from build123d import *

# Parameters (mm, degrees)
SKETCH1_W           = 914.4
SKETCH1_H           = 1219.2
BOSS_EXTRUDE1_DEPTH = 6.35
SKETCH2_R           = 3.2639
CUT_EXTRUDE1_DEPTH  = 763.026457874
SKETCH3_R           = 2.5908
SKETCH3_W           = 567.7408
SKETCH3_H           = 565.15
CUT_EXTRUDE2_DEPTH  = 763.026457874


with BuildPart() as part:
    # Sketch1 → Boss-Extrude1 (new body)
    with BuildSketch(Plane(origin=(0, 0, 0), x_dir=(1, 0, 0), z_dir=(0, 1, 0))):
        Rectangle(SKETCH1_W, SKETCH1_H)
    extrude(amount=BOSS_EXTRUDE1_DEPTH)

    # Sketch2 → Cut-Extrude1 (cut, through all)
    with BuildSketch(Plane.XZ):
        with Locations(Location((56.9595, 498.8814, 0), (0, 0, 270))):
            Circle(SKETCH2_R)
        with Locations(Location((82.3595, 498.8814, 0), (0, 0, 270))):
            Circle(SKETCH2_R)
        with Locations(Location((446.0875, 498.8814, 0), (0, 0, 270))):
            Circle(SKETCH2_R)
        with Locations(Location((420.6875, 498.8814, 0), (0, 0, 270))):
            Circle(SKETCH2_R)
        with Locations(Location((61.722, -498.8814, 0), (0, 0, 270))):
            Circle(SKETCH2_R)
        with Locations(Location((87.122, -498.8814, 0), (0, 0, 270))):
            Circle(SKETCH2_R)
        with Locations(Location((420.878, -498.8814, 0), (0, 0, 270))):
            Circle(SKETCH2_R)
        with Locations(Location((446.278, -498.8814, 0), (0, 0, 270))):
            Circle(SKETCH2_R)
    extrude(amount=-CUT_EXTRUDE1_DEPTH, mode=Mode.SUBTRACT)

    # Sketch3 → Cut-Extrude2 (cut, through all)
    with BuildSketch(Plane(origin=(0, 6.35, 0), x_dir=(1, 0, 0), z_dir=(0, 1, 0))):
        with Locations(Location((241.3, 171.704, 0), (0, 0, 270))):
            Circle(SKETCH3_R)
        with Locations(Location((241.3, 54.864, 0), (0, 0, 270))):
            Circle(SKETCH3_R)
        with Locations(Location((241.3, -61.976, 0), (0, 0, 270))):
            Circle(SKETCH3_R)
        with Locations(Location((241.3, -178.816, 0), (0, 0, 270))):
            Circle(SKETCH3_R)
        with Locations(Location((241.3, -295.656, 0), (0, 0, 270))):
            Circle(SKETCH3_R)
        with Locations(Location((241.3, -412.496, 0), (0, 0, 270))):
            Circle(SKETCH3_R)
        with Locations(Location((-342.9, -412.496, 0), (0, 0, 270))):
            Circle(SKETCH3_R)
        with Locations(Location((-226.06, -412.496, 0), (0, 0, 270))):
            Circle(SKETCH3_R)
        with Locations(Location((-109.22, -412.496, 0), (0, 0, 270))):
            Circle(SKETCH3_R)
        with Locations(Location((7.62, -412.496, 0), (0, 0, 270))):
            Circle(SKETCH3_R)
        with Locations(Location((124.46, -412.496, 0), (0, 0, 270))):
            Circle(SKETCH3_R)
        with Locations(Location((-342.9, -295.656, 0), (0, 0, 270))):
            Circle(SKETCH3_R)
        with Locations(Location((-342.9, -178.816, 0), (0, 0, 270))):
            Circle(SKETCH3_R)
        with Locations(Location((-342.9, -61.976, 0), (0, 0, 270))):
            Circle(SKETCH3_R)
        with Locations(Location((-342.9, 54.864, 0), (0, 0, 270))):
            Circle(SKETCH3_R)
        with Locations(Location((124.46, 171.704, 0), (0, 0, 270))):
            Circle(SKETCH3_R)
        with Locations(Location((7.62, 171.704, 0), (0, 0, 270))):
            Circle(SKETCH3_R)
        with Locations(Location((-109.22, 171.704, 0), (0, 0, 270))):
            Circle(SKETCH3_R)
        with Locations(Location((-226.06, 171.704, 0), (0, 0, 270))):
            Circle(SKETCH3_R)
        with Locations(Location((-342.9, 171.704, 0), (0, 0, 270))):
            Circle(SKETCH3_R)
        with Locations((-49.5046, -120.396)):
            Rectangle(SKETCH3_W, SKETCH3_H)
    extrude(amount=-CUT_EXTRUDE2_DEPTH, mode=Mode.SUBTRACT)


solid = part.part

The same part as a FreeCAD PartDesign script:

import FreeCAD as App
import Part
import Sketcher
Q = App.Units.Quantity

doc = App.newDocument("Part")
params = doc.addObject("Spreadsheet::Sheet", "Params")
for row, (alias, value) in enumerate([
    ("sketch1_width", "36 in"),
    ("sketch1_height", "48 in"),
    ("pad1_length", "0.25 in"),
    ("sketch2_diameter", "0.257 in"),
    ("sketch3_diameter", "0.204 in"),
    ("sketch3_height", "22.25 in"),
    ("sketch3_width", "22.352 in"),
], start=1):
    params.set(f"A{row}", alias)
    params.set(f"B{row}", "=" + value)
    params.setAlias(f"B{row}", alias)

body = doc.addObject("PartDesign::Body", "Body")

# Sketch on XZ plane
sketch1 = body.newObject("Sketcher::SketchObject", "Sketch")
sketch1.AttachmentSupport = (doc.getObject("XZ_Plane"), [""])
sketch1.MapMode = "FlatFace"
sketch1.addGeometry([
    Part.LineSegment(App.Vector(-457, -610, 0), App.Vector(-457, 610, 0)),
    Part.LineSegment(App.Vector(-457, 610, 0), App.Vector(457, 610, 0)),
    Part.LineSegment(App.Vector(457, 610, 0), App.Vector(457, -610, 0)),
    Part.LineSegment(App.Vector(457, -610, 0), App.Vector(-457, -610, 0)),
], False)
sketch1.addConstraint([
    Sketcher.Constraint("Coincident", 0, 2, 1, 1),
    Sketcher.Constraint("Coincident", 1, 2, 2, 1),
    Sketcher.Constraint("Coincident", 2, 2, 3, 1),
    Sketcher.Constraint("Coincident", 3, 2, 0, 1),
    Sketcher.Constraint("Vertical", 0),
    Sketcher.Constraint("Horizontal", 1),
    Sketcher.Constraint("Vertical", 2),
    Sketcher.Constraint("Horizontal", 3),
    Sketcher.Constraint("Symmetric", 0, 2, 2, 2, -1, 1),
    Sketcher.Constraint("DistanceX", 1, 1, 1, 2, Q("36 in")),
    Sketcher.Constraint("DistanceY", 0, 1, 0, 2, Q("48 in")),
])
sketch1.setExpression("Constraints[9]", "Params.sketch1_width")
sketch1.setExpression("Constraints[10]", "Params.sketch1_height")
pad1 = body.newObject("PartDesign::Pad", "Pad")
pad1.Profile = sketch1
pad1.setExpression("Length", "Params.pad1_length")
pad1.Reversed = True

# Sketch on XZ plane
sketch2 = body.newObject("Sketcher::SketchObject", "Sketch001")
sketch2.AttachmentSupport = (doc.getObject("XZ_Plane"), [""])
sketch2.MapMode = "FlatFace"
sketch2.addGeometry([
    Part.Circle(App.Vector(57, 498.9, 0), App.Vector(0, 0, 1), 3.3),  # 0
    Part.Circle(App.Vector(82.4, 498.9, 0), App.Vector(0, 0, 1), 3.3),  # 1
    Part.Circle(App.Vector(446.1, 498.9, 0), App.Vector(0, 0, 1), 3.3),  # 2
    Part.Circle(App.Vector(420.7, 498.9, 0), App.Vector(0, 0, 1), 3.3),  # 3
    Part.Circle(App.Vector(61.7, -498.9, 0), App.Vector(0, 0, 1), 3.3),  # 4
    Part.Circle(App.Vector(87.1, -498.9, 0), App.Vector(0, 0, 1), 3.3),  # 5
    Part.Circle(App.Vector(420.9, -498.9, 0), App.Vector(0, 0, 1), 3.3),  # 6
    Part.Circle(App.Vector(446.3, -498.9, 0), App.Vector(0, 0, 1), 3.3),  # 7
], False)
sketch2.addConstraint([
    Sketcher.Constraint("Equal", 0, 1),
    Sketcher.Constraint("Equal", 1, 2),
    Sketcher.Constraint("Equal", 2, 3),
    Sketcher.Constraint("Equal", 3, 4),
    Sketcher.Constraint("Equal", 4, 5),
    Sketcher.Constraint("Equal", 5, 6),
    Sketcher.Constraint("Equal", 6, 7),
    Sketcher.Constraint("Horizontal", 0, 3, 1, 3),
    Sketcher.Constraint("Horizontal", 1, 3, 2, 3),
    Sketcher.Constraint("Horizontal", 2, 3, 3, 3),
    Sketcher.Constraint("Horizontal", 4, 3, 5, 3),
    Sketcher.Constraint("Horizontal", 5, 3, 6, 3),
    Sketcher.Constraint("Horizontal", 6, 3, 7, 3),
    Sketcher.Constraint("Diameter", 0, Q("0.257 in")),
    Sketcher.Constraint("DistanceX", 0, 3, 1, 3, Q("1 in")),
    Sketcher.Constraint("DistanceX", 3, 3, 2, 3, Q("1 in")),
    Sketcher.Constraint("DistanceX", 4, 3, 5, 3, Q("1 in")),
    Sketcher.Constraint("DistanceX", 6, 3, 7, 3, Q("1 in")),
    Sketcher.Constraint("DistanceX", -1, 1, 4, 3, Q("2.43 in")),
    Sketcher.Constraint("DistanceX", -1, 1, 6, 3, Q("16.57 in")),
    Sketcher.Constraint("DistanceX", 1, 3, 2, 3, Q("14.32 in")),
    Sketcher.Constraint("DistanceY", -1, 1, 0, 3, Q("19.641 in")),
    Sketcher.Constraint("DistanceX", -1, 1, 2, 3, Q("17.5625 in")),
    Sketcher.Constraint("DistanceY", 4, 3, -1, 1, Q("19.641 in")),
])
sketch2.setExpression("Constraints[13]", "Params.sketch2_diameter")
pocket1 = body.newObject("PartDesign::Pocket", "Pocket")
pocket1.Profile = sketch2
pocket1.Type = "ThroughAll"

# Sketch on XZ plane
sketch3 = body.newObject("Sketcher::SketchObject", "Sketch002")
sketch3.AttachmentSupport = (doc.getObject("XZ_Plane"), [""])
sketch3.MapMode = "FlatFace"
sketch3.AttachmentOffset = App.Placement(App.Vector(0, 0, -0.25 * 25.4), App.Rotation())
sketch3.addGeometry([
    Part.Circle(App.Vector(241.3, -171.7, 0), App.Vector(0, 0, 1), 2.6),  # 0
    Part.Circle(App.Vector(241.3, -54.9, 0), App.Vector(0, 0, 1), 2.6),  # 1
    Part.Circle(App.Vector(241.3, 62, 0), App.Vector(0, 0, 1), 2.6),  # 2
    Part.Circle(App.Vector(241.3, 178.8, 0), App.Vector(0, 0, 1), 2.6),  # 3
    Part.Circle(App.Vector(241.3, 295.7, 0), App.Vector(0, 0, 1), 2.6),  # 4
    Part.Circle(App.Vector(241.3, 412.5, 0), App.Vector(0, 0, 1), 2.6),  # 5
    Part.Circle(App.Vector(-342.9, 412.5, 0), App.Vector(0, 0, 1), 2.6),  # 6
    Part.Circle(App.Vector(-226.1, 412.5, 0), App.Vector(0, 0, 1), 2.6),  # 7
    Part.Circle(App.Vector(-109.2, 412.5, 0), App.Vector(0, 0, 1), 2.6),  # 8
    Part.Circle(App.Vector(7.6, 412.5, 0), App.Vector(0, 0, 1), 2.6),  # 9
    Part.Circle(App.Vector(124.5, 412.5, 0), App.Vector(0, 0, 1), 2.6),  # 10
    Part.Circle(App.Vector(-342.9, 295.7, 0), App.Vector(0, 0, 1), 2.6),  # 11
    Part.Circle(App.Vector(-342.9, 178.8, 0), App.Vector(0, 0, 1), 2.6),  # 12
    Part.Circle(App.Vector(-342.9, 62, 0), App.Vector(0, 0, 1), 2.6),  # 13
    Part.Circle(App.Vector(-342.9, -54.9, 0), App.Vector(0, 0, 1), 2.6),  # 14
    Part.Circle(App.Vector(124.5, -171.7, 0), App.Vector(0, 0, 1), 2.6),  # 15
    Part.Circle(App.Vector(7.6, -171.7, 0), App.Vector(0, 0, 1), 2.6),  # 16
    Part.Circle(App.Vector(-109.2, -171.7, 0), App.Vector(0, 0, 1), 2.6),  # 17
    Part.Circle(App.Vector(-226.1, -171.7, 0), App.Vector(0, 0, 1), 2.6),  # 18
    Part.Circle(App.Vector(-342.9, -171.7, 0), App.Vector(0, 0, 1), 2.6),  # 19
    Part.LineSegment(App.Vector(-333.4, -162.2, 0), App.Vector(-333.4, 403, 0)),  # 20
    Part.LineSegment(App.Vector(-333.4, 403, 0), App.Vector(234.4, 403, 0)),  # 21
    Part.LineSegment(App.Vector(234.4, 403, 0), App.Vector(234.4, -162.2, 0)),  # 22
    Part.LineSegment(App.Vector(234.4, -162.2, 0), App.Vector(-333.4, -162.2, 0)),  # 23
], False)
sketch3.addConstraint([
    Sketcher.Constraint("Coincident", 20, 2, 21, 1),
    Sketcher.Constraint("Coincident", 21, 2, 22, 1),
    Sketcher.Constraint("Coincident", 22, 2, 23, 1),
    Sketcher.Constraint("Coincident", 23, 2, 20, 1),
    Sketcher.Constraint("Vertical", 20),
    Sketcher.Constraint("Horizontal", 21),
    Sketcher.Constraint("Vertical", 22),
    Sketcher.Constraint("Horizontal", 23),
    Sketcher.Constraint("Equal", 0, 1),
    Sketcher.Constraint("Equal", 1, 2),
    Sketcher.Constraint("Equal", 2, 3),
    Sketcher.Constraint("Equal", 3, 4),
    Sketcher.Constraint("Equal", 4, 5),
    Sketcher.Constraint("Equal", 5, 6),
    Sketcher.Constraint("Equal", 6, 7),
    Sketcher.Constraint("Equal", 7, 8),
    Sketcher.Constraint("Equal", 8, 9),
    Sketcher.Constraint("Equal", 9, 10),
    Sketcher.Constraint("Equal", 10, 11),
    Sketcher.Constraint("Equal", 11, 12),
    Sketcher.Constraint("Equal", 12, 13),
    Sketcher.Constraint("Equal", 13, 14),
    Sketcher.Constraint("Equal", 14, 15),
    Sketcher.Constraint("Equal", 15, 16),
    Sketcher.Constraint("Equal", 16, 17),
    Sketcher.Constraint("Equal", 17, 18),
    Sketcher.Constraint("Equal", 18, 19),
    Sketcher.Constraint("Horizontal", 5, 3, 6, 3),
    Sketcher.Constraint("Horizontal", 6, 3, 7, 3),
    Sketcher.Constraint("Horizontal", 7, 3, 8, 3),
    Sketcher.Constraint("Horizontal", 8, 3, 9, 3),
    Sketcher.Constraint("Horizontal", 9, 3, 10, 3),
    Sketcher.Constraint("Horizontal", 4, 3, 11, 3),
    Sketcher.Constraint("Horizontal", 3, 3, 12, 3),
    Sketcher.Constraint("Horizontal", 2, 3, 13, 3),
    Sketcher.Constraint("Horizontal", 1, 3, 14, 3),
    Sketcher.Constraint("Horizontal", 0, 3, 15, 3),
    Sketcher.Constraint("Horizontal", 15, 3, 16, 3),
    Sketcher.Constraint("Horizontal", 16, 3, 17, 3),
    Sketcher.Constraint("Horizontal", 17, 3, 18, 3),
    Sketcher.Constraint("Horizontal", 18, 3, 19, 3),
    Sketcher.Constraint("Vertical", 0, 3, 1, 3),
    Sketcher.Constraint("Vertical", 1, 3, 2, 3),
    Sketcher.Constraint("Vertical", 2, 3, 3, 3),
    Sketcher.Constraint("Vertical", 3, 3, 4, 3),
    Sketcher.Constraint("Vertical", 4, 3, 5, 3),
    Sketcher.Constraint("Vertical", 6, 3, 11, 3),
    Sketcher.Constraint("Vertical", 11, 3, 12, 3),
    Sketcher.Constraint("Vertical", 12, 3, 13, 3),
    Sketcher.Constraint("Vertical", 13, 3, 14, 3),
    Sketcher.Constraint("Vertical", 10, 3, 15, 3),
    Sketcher.Constraint("Vertical", 9, 3, 16, 3),
    Sketcher.Constraint("Vertical", 8, 3, 17, 3),
    Sketcher.Constraint("Vertical", 7, 3, 18, 3),
    Sketcher.Constraint("Vertical", 14, 3, 19, 3),
    Sketcher.Constraint("Diameter", 0, Q("0.204 in")),
    Sketcher.Constraint("DistanceY", 0, 3, 5, 3, Q("23 in")),
    Sketcher.Constraint("DistanceX", 6, 3, 5, 3, Q("23 in")),
    Sketcher.Constraint("DistanceY", 20, 1, 20, 2, Q("22.25 in")),
    Sketcher.Constraint("DistanceX", -1, 1, 0, 3, Q("9.5 in")),
    Sketcher.Constraint("DistanceX", 7, 3, -1, 1, Q("8.9 in")),
    Sketcher.Constraint("DistanceX", 8, 3, -1, 1, Q("4.3 in")),
    Sketcher.Constraint("DistanceX", -1, 1, 9, 3, Q("0.3 in")),
    Sketcher.Constraint("DistanceX", -1, 1, 10, 3, Q("4.9 in")),
    Sketcher.Constraint("DistanceY", 0, 3, 1, 3, Q("4.6 in")),
    Sketcher.Constraint("DistanceY", 1, 3, 2, 3, Q("4.6 in")),
    Sketcher.Constraint("DistanceY", 2, 3, 3, 3, Q("4.6 in")),
    Sketcher.Constraint("DistanceY", 3, 3, 4, 3, Q("4.6 in")),
    Sketcher.Constraint("DistanceX", 21, 1, 21, 2, Q("22.352 in")),
    Sketcher.Constraint("DistanceY", 0, 3, -1, 1, Q("6.76 in")),
    Sketcher.Constraint("DistanceX", 20, 2, -1, 1, Q("13.125 in")),
    Sketcher.Constraint("DistanceY", -1, 1, 20, 2, Q("15.865 in")),
])
sketch3.setExpression("Constraints[55]", "Params.sketch3_diameter")
sketch3.setExpression("Constraints[58]", "Params.sketch3_height")
sketch3.setExpression("Constraints[68]", "Params.sketch3_width")
pocket2 = body.newObject("PartDesign::Pocket", "Pocket001")
pocket2.Profile = sketch3
pocket2.Type = "ThroughAll"
pocket2.Reversed = True

doc.recompute()
